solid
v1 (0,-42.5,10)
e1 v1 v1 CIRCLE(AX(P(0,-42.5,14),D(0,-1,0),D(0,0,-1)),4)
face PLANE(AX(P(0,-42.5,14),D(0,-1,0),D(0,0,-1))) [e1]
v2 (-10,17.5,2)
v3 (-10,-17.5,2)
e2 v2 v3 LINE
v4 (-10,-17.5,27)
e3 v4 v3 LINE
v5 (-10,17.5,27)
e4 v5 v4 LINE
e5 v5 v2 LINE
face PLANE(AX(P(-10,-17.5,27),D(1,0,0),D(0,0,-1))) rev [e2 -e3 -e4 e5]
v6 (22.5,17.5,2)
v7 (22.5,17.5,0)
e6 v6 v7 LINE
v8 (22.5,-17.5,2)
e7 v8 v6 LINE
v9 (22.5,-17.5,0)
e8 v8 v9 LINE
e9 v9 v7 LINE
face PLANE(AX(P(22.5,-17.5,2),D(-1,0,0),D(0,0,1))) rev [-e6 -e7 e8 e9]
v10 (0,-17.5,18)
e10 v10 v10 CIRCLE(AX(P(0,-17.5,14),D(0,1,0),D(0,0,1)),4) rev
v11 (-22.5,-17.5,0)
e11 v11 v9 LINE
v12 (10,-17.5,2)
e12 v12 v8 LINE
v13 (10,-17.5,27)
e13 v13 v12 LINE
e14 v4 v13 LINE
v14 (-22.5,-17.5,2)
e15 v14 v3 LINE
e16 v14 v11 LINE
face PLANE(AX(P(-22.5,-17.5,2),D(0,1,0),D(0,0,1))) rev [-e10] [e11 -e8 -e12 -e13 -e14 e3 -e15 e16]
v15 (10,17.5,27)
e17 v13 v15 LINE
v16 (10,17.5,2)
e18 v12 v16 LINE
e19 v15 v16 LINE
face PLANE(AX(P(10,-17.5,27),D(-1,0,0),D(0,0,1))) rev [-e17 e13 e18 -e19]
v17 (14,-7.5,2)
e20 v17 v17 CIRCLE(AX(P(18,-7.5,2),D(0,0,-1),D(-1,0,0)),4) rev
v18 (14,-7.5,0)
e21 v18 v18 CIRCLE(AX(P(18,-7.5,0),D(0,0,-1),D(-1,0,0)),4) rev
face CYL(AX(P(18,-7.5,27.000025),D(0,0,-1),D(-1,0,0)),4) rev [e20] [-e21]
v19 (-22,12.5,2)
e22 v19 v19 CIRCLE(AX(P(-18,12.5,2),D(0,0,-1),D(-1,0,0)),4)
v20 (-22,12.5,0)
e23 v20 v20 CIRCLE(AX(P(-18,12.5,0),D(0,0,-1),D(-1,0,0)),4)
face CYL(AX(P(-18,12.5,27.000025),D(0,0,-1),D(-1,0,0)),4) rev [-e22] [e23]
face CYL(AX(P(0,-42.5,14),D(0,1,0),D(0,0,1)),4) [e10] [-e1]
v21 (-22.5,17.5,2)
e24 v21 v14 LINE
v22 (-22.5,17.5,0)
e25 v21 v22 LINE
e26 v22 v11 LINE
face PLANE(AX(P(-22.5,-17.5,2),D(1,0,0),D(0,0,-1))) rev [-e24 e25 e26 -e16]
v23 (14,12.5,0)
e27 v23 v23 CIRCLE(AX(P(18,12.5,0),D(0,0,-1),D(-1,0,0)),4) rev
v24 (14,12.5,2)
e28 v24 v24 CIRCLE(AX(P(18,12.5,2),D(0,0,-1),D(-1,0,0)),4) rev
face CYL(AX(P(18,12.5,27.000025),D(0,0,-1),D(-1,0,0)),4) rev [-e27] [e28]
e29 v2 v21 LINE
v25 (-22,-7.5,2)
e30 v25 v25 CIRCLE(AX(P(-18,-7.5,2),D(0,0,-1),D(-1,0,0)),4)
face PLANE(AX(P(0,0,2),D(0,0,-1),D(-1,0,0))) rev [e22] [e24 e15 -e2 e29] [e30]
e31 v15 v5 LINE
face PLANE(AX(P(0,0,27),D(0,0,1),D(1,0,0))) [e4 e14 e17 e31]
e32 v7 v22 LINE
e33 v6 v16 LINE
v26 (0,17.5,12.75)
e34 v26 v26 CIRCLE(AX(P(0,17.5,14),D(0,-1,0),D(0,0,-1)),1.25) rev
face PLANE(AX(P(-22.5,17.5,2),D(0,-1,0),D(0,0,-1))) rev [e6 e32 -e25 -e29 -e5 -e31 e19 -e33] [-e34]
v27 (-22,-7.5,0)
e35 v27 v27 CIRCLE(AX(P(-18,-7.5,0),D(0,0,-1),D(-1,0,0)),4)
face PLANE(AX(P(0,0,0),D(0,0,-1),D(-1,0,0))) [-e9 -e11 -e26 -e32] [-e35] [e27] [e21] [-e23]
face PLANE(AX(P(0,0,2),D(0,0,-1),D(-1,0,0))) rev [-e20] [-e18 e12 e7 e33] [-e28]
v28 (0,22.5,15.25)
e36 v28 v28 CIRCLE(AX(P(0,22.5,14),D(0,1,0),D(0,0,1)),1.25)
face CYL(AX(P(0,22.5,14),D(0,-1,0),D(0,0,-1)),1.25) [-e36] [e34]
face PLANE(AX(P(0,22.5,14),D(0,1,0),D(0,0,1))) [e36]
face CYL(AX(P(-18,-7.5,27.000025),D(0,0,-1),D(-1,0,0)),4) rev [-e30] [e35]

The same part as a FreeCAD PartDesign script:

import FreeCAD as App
import Part
import Sketcher
from FreeCAD import Vector

doc = App.newDocument("Part")
params = doc.addObject("Spreadsheet::Sheet", "Params")
for row, (alias, value) in enumerate([
    ("sketch1_width", "45 mm"),
    ("sketch1_height", "35 mm"),
    ("pad1_length", "2 mm"),
    ("sketch2_width", "20 mm"),
    ("sketch2_height", "35 mm"),
    ("pad2_length", "25 mm"),
    ("sketch3_diameter", "8 mm"),
    ("pad3_length", "25 mm"),
    ("sketch4_diameter", "2.5 mm"),
    ("pad4_length", "5 mm"),
    ("sketch5_diameter", "8 mm"),
], start=1):
    params.set(f"A{row}", alias)
    params.set(f"B{row}", "=" + value)
    params.setAlias(f"B{row}", alias)

body = doc.addObject("PartDesign::Body", "Body")

sketch1 = body.newObject("Sketcher::SketchObject", "Sketch")
sketch1.AttachmentSupport = (doc.getObject("XY_Plane"), [""])
sketch1.MapMode = "FlatFace"
sketch1.addGeometry([
    Part.LineSegment(Vector(-22.5, 17.5, 0), Vector(-22.5, -17.5, 0)),
    Part.LineSegment(Vector(-22.5, -17.5, 0), Vector(22.5, -17.5, 0)),
    Part.LineSegment(Vector(22.5, -17.5, 0), Vector(22.5, 17.5, 0)),
    Part.LineSegment(Vector(22.5, 17.5, 0), Vector(-22.5, 17.5, 0)),
], False)
sketch1.addConstraint([
    Sketcher.Constraint("Coincident", 0, 2, 1, 1),
    Sketcher.Constraint("Coincident", 1, 2, 2, 1),
    Sketcher.Constraint("Coincident", 2, 2, 3, 1),
    Sketcher.Constraint("Coincident", 3, 2, 0, 1),
    Sketcher.Constraint("Vertical", 0),
    Sketcher.Constraint("Horizontal", 1),
    Sketcher.Constraint("Vertical", 2),
    Sketcher.Constraint("Horizontal", 3),
    Sketcher.Constraint("Symmetric", 0, 2, 2, 2, -1, 1),
    Sketcher.Constraint("DistanceX", 1, 1, 1, 2, 45.0),
    Sketcher.Constraint("DistanceY", 0, 2, 0, 1, 35.0),
])
sketch1.setExpression("Constraints[9]", "Params.sketch1_width")
sketch1.setExpression("Constraints[10]", "Params.sketch1_height")
pad1 = body.newObject("PartDesign::Pad", "Pad")
pad1.Profile = sketch1
pad1.setExpression("Length", "Params.pad1_length")

sketch2 = body.newObject("Sketcher::SketchObject", "Sketch001")
sketch2.AttachmentSupport = (doc.getObject("XY_Plane"), [""])
sketch2.MapMode = "FlatFace"
sketch2.AttachmentOffset = App.Placement(Vector(0, 0, 2), App.Rotation())
sketch2.addGeometry([
    Part.LineSegment(Vector(-10, 17.5, 0), Vector(-10, -17.5, 0)),
    Part.LineSegment(Vector(-10, -17.5, 0), Vector(10, -17.5, 0)),
    Part.LineSegment(Vector(10, -17.5, 0), Vector(10, 17.5, 0)),
    Part.LineSegment(Vector(10, 17.5, 0), Vector(-10, 17.5, 0)),
], False)
sketch2.addConstraint([
    Sketcher.Constraint("Coincident", 0, 2, 1, 1),
    Sketcher.Constraint("Coincident", 1, 2, 2, 1),
    Sketcher.Constraint("Coincident", 2, 2, 3, 1),
    Sketcher.Constraint("Coincident", 3, 2, 0, 1),
    Sketcher.Constraint("Vertical", 0),
    Sketcher.Constraint("Horizontal", 1),
    Sketcher.Constraint("Vertical", 2),
    Sketcher.Constraint("Horizontal", 3),
    Sketcher.Constraint("Symmetric", 0, 2, 2, 2, -1, 1),
    Sketcher.Constraint("DistanceX", 1, 1, 1, 2, 20.0),
    Sketcher.Constraint("DistanceY", 0, 2, 0, 1, 35.0),
])
sketch2.setExpression("Constraints[9]", "Params.sketch2_width")
sketch2.setExpression("Constraints[10]", "Params.sketch2_height")
pad2 = body.newObject("PartDesign::Pad", "Pad001")
pad2.Profile = sketch2
pad2.setExpression("Length", "Params.pad2_length")

sketch3 = body.newObject("Sketcher::SketchObject", "Sketch002")
sketch3.AttachmentSupport = (doc.getObject("XZ_Plane"), [""])
sketch3.MapMode = "FlatFace"
sketch3.AttachmentOffset = App.Placement(Vector(0, 0, 17.5), App.Rotation())
sketch3.addGeometry(Part.Circle(Vector(0, 14, 0), Vector(0, 0, 1), 4), False)
sketch3.addConstraint([
    Sketcher.Constraint("PointOnObject", 0, 3, -2),
    Sketcher.Constraint("Diameter", 0, 8.0),
    Sketcher.Constraint("DistanceY", -1, 1, 0, 3, 14.0),
])
sketch3.setExpression("Constraints[1]", "Params.sketch3_diameter")
pad3 = body.newObject("PartDesign::Pad", "Pad002")
pad3.Profile = sketch3
pad3.setExpression("Length", "Params.pad3_length")

sketch4 = body.newObject("Sketcher::SketchObject", "Sketch003")
sketch4.AttachmentSupport = (doc.getObject("XZ_Plane"), [""])
sketch4.MapMode = "FlatFace"
sketch4.AttachmentOffset = App.Placement(Vector(0, 0, -17.5), App.Rotation())
sketch4.addGeometry(Part.Circle(Vector(0, 14, 0), Vector(0, 0, 1), 1.25), False)
sketch4.addConstraint([
    Sketcher.Constraint("PointOnObject", 0, 3, -2),
    Sketcher.Constraint("Diameter", 0, 2.5),
    Sketcher.Constraint("DistanceY", -1, 1, 0, 3, 14.0),
])
sketch4.setExpression("Constraints[1]", "Params.sketch4_diameter")
pad4 = body.newObject("PartDesign::Pad", "Pad003")
pad4.Profile = sketch4
pad4.setExpression("Length", "Params.pad4_length")
pad4.Reversed = True

sketch5 = body.newObject("Sketcher::SketchObject", "Sketch004")
sketch5.AttachmentSupport = (doc.getObject("XY_Plane"), [""])
sketch5.MapMode = "FlatFace"
sketch5.addGeometry([
    Part.Circle(Vector(-18, -7.5, 0), Vector(0, 0, 1), 4),
    Part.Circle(Vector(-18, 12.5, 0), Vector(0, 0, 1), 4),
    Part.Circle(Vector(18, 12.5, 0), Vector(0, 0, 1), 4),
    Part.Circle(Vector(18, -7.5, 0), Vector(0, 0, 1), 4),
], False)
sketch5.addConstraint([
    Sketcher.Constraint("Equal", 0, 1),
    Sketcher.Constraint("Equal", 1, 2),
    Sketcher.Constraint("Equal", 2, 3),
    Sketcher.Constraint("Symmetric", 1, 3, 2, 3, -2),
    Sketcher.Constraint("Symmetric", 0, 3, 3, 3, -2),
    Sketcher.Constraint("Vertical", 0, 3, 1, 3),
    Sketcher.Constraint("Diameter", 0, 8.0),
    Sketcher.Constraint("DistanceX", 0, 3, -1, 1, 18.0),
    Sketcher.Constraint("DistanceY", 0, 3, 1, 3, 20.0),
    Sketcher.Constraint("DistanceY", 0, 3, -1, 1, 7.5),
])
sketch5.setExpression("Constraints[6]", "Params.sketch5_diameter")
pocket1 = body.newObject("PartDesign::Pocket", "Pocket")
pocket1.Profile = sketch5
pocket1.Type = "ThroughAll"
pocket1.Reversed = True

doc.recompute()
